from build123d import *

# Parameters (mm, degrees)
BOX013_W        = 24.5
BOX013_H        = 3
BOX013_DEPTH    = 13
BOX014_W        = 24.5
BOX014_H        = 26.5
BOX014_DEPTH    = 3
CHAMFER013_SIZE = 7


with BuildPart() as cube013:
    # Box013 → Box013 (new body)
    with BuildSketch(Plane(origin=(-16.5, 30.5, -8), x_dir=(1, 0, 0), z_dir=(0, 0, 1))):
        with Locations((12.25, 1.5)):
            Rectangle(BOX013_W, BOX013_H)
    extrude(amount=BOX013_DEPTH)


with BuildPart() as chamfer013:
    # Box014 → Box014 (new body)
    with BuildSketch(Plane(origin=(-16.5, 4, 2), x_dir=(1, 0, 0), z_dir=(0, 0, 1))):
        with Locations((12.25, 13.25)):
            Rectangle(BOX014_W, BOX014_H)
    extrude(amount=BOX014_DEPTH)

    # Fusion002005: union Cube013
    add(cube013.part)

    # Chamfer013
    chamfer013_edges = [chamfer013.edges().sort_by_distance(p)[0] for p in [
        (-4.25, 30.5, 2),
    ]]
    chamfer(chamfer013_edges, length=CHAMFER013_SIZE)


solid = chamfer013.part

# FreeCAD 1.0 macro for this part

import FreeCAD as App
import Part
import Sketcher
from FreeCAD import Vector
Q = App.Units.Quantity


def edges_at(feature, points):
    """Names of the edges that pass closest to the given points."""
    edges = feature.Shape.Edges
    near = lambda p: min(range(len(edges)), key=lambda i: edges[i].distToShape(Part.Vertex(*p))[0])
    return sorted({f"Edge{near(p) + 1}" for p in points})


def add_polygon(sketch, points):
    """Adds a closed chain of lines whose ends are joined by coincident constraints."""
    first, n = sketch.GeometryCount, len(points)
    for a, b in zip(points, points[1:] + points[:1]):
        sketch.addGeometry(Part.LineSegment(App.Vector(*a, 0), App.Vector(*b, 0)), False)
    for i in range(n):
        sketch.addConstraint(Sketcher.Constraint("Coincident", first + i, 2, first + (i + 1) % n, 1))

doc = App.newDocument("Part")
body = doc.addObject("PartDesign::Body", "Body")

sketch1 = body.newObject("Sketcher::SketchObject", "Sketch")
sketch1.AttachmentSupport = (doc.getObject("XY_Plane"), [""])
sketch1.MapMode = "FlatFace"
sketch1.AttachmentOffset = App.Placement(Vector(0, 0, -8), App.Rotation())
add_polygon(sketch1, [(-16.5, 33.5), (-16.5, 30.5), (8, 30.5), (8, 33.5)])
sketch1.addConstraint([
    Sketcher.Constraint("Vertical", 0),
    Sketcher.Constraint("Horizontal", 1),
    Sketcher.Constraint("Vertical", 2),
    Sketcher.Constraint("Horizontal", 3),
    Sketcher.Constraint("DistanceY", 0, 2, 0, 1, Q("3 mm")),
    Sketcher.Constraint("DistanceX", 1, 1, 1, 2, Q("24.5 mm")),
    Sketcher.Constraint("DistanceX", -1, 1, 1, 2, Q("8 mm")),
    Sketcher.Constraint("DistanceY", -1, 1, 0, 2, Q("30.5 mm")),
])
pad1 = body.newObject("PartDesign::Pad", "Pad")
pad1.Profile = sketch1
pad1.Length = 13
body2 = doc.addObject("PartDesign::Body", "Body001")

sketch2 = body2.newObject("Sketcher::SketchObject", "Sketch001")
sketch2.AttachmentSupport = (doc.getObject("XY_Plane001"), [""])
sketch2.MapMode = "FlatFace"
sketch2.AttachmentOffset = App.Placement(Vector(0, 0, 2), App.Rotation())
add_polygon(sketch2, [(-16, 30), (-16, 4), (8, 4), (8, 30)])
sketch2.addConstraint([
    Sketcher.Constraint("Vertical", 0),
    Sketcher.Constraint("Horizontal", 1),
    Sketcher.Constraint("Vertical", 2),
    Sketcher.Constraint("Horizontal", 3),
    Sketcher.Constraint("DistanceX", 1, 1, 1, 2, Q("24.5 mm")),
    Sketcher.Constraint("DistanceY", 0, 2, 0, 1, Q("26.5 mm")),
    Sketcher.Constraint("DistanceY", -1, 1, 0, 2, Q("4 mm")),
    Sketcher.Constraint("DistanceX", -1, 1, 1, 2, Q("8 mm")),
])
pad2 = body2.newObject("PartDesign::Pad", "Pad001")
pad2.Profile = sketch2
pad2.Length = 3
doc.recompute()

boolean = body2.newObject("PartDesign::Boolean", "Boolean")
boolean.Type = "Fuse"
boolean.addObjects([body])
doc.recompute()

chamfer = body2.newObject("PartDesign::Chamfer", "Chamfer")
chamfer.Base = (boolean, edges_at(boolean, [(-4.25, 30.5, 2)]))
chamfer.Size = 7

doc.recompute()
